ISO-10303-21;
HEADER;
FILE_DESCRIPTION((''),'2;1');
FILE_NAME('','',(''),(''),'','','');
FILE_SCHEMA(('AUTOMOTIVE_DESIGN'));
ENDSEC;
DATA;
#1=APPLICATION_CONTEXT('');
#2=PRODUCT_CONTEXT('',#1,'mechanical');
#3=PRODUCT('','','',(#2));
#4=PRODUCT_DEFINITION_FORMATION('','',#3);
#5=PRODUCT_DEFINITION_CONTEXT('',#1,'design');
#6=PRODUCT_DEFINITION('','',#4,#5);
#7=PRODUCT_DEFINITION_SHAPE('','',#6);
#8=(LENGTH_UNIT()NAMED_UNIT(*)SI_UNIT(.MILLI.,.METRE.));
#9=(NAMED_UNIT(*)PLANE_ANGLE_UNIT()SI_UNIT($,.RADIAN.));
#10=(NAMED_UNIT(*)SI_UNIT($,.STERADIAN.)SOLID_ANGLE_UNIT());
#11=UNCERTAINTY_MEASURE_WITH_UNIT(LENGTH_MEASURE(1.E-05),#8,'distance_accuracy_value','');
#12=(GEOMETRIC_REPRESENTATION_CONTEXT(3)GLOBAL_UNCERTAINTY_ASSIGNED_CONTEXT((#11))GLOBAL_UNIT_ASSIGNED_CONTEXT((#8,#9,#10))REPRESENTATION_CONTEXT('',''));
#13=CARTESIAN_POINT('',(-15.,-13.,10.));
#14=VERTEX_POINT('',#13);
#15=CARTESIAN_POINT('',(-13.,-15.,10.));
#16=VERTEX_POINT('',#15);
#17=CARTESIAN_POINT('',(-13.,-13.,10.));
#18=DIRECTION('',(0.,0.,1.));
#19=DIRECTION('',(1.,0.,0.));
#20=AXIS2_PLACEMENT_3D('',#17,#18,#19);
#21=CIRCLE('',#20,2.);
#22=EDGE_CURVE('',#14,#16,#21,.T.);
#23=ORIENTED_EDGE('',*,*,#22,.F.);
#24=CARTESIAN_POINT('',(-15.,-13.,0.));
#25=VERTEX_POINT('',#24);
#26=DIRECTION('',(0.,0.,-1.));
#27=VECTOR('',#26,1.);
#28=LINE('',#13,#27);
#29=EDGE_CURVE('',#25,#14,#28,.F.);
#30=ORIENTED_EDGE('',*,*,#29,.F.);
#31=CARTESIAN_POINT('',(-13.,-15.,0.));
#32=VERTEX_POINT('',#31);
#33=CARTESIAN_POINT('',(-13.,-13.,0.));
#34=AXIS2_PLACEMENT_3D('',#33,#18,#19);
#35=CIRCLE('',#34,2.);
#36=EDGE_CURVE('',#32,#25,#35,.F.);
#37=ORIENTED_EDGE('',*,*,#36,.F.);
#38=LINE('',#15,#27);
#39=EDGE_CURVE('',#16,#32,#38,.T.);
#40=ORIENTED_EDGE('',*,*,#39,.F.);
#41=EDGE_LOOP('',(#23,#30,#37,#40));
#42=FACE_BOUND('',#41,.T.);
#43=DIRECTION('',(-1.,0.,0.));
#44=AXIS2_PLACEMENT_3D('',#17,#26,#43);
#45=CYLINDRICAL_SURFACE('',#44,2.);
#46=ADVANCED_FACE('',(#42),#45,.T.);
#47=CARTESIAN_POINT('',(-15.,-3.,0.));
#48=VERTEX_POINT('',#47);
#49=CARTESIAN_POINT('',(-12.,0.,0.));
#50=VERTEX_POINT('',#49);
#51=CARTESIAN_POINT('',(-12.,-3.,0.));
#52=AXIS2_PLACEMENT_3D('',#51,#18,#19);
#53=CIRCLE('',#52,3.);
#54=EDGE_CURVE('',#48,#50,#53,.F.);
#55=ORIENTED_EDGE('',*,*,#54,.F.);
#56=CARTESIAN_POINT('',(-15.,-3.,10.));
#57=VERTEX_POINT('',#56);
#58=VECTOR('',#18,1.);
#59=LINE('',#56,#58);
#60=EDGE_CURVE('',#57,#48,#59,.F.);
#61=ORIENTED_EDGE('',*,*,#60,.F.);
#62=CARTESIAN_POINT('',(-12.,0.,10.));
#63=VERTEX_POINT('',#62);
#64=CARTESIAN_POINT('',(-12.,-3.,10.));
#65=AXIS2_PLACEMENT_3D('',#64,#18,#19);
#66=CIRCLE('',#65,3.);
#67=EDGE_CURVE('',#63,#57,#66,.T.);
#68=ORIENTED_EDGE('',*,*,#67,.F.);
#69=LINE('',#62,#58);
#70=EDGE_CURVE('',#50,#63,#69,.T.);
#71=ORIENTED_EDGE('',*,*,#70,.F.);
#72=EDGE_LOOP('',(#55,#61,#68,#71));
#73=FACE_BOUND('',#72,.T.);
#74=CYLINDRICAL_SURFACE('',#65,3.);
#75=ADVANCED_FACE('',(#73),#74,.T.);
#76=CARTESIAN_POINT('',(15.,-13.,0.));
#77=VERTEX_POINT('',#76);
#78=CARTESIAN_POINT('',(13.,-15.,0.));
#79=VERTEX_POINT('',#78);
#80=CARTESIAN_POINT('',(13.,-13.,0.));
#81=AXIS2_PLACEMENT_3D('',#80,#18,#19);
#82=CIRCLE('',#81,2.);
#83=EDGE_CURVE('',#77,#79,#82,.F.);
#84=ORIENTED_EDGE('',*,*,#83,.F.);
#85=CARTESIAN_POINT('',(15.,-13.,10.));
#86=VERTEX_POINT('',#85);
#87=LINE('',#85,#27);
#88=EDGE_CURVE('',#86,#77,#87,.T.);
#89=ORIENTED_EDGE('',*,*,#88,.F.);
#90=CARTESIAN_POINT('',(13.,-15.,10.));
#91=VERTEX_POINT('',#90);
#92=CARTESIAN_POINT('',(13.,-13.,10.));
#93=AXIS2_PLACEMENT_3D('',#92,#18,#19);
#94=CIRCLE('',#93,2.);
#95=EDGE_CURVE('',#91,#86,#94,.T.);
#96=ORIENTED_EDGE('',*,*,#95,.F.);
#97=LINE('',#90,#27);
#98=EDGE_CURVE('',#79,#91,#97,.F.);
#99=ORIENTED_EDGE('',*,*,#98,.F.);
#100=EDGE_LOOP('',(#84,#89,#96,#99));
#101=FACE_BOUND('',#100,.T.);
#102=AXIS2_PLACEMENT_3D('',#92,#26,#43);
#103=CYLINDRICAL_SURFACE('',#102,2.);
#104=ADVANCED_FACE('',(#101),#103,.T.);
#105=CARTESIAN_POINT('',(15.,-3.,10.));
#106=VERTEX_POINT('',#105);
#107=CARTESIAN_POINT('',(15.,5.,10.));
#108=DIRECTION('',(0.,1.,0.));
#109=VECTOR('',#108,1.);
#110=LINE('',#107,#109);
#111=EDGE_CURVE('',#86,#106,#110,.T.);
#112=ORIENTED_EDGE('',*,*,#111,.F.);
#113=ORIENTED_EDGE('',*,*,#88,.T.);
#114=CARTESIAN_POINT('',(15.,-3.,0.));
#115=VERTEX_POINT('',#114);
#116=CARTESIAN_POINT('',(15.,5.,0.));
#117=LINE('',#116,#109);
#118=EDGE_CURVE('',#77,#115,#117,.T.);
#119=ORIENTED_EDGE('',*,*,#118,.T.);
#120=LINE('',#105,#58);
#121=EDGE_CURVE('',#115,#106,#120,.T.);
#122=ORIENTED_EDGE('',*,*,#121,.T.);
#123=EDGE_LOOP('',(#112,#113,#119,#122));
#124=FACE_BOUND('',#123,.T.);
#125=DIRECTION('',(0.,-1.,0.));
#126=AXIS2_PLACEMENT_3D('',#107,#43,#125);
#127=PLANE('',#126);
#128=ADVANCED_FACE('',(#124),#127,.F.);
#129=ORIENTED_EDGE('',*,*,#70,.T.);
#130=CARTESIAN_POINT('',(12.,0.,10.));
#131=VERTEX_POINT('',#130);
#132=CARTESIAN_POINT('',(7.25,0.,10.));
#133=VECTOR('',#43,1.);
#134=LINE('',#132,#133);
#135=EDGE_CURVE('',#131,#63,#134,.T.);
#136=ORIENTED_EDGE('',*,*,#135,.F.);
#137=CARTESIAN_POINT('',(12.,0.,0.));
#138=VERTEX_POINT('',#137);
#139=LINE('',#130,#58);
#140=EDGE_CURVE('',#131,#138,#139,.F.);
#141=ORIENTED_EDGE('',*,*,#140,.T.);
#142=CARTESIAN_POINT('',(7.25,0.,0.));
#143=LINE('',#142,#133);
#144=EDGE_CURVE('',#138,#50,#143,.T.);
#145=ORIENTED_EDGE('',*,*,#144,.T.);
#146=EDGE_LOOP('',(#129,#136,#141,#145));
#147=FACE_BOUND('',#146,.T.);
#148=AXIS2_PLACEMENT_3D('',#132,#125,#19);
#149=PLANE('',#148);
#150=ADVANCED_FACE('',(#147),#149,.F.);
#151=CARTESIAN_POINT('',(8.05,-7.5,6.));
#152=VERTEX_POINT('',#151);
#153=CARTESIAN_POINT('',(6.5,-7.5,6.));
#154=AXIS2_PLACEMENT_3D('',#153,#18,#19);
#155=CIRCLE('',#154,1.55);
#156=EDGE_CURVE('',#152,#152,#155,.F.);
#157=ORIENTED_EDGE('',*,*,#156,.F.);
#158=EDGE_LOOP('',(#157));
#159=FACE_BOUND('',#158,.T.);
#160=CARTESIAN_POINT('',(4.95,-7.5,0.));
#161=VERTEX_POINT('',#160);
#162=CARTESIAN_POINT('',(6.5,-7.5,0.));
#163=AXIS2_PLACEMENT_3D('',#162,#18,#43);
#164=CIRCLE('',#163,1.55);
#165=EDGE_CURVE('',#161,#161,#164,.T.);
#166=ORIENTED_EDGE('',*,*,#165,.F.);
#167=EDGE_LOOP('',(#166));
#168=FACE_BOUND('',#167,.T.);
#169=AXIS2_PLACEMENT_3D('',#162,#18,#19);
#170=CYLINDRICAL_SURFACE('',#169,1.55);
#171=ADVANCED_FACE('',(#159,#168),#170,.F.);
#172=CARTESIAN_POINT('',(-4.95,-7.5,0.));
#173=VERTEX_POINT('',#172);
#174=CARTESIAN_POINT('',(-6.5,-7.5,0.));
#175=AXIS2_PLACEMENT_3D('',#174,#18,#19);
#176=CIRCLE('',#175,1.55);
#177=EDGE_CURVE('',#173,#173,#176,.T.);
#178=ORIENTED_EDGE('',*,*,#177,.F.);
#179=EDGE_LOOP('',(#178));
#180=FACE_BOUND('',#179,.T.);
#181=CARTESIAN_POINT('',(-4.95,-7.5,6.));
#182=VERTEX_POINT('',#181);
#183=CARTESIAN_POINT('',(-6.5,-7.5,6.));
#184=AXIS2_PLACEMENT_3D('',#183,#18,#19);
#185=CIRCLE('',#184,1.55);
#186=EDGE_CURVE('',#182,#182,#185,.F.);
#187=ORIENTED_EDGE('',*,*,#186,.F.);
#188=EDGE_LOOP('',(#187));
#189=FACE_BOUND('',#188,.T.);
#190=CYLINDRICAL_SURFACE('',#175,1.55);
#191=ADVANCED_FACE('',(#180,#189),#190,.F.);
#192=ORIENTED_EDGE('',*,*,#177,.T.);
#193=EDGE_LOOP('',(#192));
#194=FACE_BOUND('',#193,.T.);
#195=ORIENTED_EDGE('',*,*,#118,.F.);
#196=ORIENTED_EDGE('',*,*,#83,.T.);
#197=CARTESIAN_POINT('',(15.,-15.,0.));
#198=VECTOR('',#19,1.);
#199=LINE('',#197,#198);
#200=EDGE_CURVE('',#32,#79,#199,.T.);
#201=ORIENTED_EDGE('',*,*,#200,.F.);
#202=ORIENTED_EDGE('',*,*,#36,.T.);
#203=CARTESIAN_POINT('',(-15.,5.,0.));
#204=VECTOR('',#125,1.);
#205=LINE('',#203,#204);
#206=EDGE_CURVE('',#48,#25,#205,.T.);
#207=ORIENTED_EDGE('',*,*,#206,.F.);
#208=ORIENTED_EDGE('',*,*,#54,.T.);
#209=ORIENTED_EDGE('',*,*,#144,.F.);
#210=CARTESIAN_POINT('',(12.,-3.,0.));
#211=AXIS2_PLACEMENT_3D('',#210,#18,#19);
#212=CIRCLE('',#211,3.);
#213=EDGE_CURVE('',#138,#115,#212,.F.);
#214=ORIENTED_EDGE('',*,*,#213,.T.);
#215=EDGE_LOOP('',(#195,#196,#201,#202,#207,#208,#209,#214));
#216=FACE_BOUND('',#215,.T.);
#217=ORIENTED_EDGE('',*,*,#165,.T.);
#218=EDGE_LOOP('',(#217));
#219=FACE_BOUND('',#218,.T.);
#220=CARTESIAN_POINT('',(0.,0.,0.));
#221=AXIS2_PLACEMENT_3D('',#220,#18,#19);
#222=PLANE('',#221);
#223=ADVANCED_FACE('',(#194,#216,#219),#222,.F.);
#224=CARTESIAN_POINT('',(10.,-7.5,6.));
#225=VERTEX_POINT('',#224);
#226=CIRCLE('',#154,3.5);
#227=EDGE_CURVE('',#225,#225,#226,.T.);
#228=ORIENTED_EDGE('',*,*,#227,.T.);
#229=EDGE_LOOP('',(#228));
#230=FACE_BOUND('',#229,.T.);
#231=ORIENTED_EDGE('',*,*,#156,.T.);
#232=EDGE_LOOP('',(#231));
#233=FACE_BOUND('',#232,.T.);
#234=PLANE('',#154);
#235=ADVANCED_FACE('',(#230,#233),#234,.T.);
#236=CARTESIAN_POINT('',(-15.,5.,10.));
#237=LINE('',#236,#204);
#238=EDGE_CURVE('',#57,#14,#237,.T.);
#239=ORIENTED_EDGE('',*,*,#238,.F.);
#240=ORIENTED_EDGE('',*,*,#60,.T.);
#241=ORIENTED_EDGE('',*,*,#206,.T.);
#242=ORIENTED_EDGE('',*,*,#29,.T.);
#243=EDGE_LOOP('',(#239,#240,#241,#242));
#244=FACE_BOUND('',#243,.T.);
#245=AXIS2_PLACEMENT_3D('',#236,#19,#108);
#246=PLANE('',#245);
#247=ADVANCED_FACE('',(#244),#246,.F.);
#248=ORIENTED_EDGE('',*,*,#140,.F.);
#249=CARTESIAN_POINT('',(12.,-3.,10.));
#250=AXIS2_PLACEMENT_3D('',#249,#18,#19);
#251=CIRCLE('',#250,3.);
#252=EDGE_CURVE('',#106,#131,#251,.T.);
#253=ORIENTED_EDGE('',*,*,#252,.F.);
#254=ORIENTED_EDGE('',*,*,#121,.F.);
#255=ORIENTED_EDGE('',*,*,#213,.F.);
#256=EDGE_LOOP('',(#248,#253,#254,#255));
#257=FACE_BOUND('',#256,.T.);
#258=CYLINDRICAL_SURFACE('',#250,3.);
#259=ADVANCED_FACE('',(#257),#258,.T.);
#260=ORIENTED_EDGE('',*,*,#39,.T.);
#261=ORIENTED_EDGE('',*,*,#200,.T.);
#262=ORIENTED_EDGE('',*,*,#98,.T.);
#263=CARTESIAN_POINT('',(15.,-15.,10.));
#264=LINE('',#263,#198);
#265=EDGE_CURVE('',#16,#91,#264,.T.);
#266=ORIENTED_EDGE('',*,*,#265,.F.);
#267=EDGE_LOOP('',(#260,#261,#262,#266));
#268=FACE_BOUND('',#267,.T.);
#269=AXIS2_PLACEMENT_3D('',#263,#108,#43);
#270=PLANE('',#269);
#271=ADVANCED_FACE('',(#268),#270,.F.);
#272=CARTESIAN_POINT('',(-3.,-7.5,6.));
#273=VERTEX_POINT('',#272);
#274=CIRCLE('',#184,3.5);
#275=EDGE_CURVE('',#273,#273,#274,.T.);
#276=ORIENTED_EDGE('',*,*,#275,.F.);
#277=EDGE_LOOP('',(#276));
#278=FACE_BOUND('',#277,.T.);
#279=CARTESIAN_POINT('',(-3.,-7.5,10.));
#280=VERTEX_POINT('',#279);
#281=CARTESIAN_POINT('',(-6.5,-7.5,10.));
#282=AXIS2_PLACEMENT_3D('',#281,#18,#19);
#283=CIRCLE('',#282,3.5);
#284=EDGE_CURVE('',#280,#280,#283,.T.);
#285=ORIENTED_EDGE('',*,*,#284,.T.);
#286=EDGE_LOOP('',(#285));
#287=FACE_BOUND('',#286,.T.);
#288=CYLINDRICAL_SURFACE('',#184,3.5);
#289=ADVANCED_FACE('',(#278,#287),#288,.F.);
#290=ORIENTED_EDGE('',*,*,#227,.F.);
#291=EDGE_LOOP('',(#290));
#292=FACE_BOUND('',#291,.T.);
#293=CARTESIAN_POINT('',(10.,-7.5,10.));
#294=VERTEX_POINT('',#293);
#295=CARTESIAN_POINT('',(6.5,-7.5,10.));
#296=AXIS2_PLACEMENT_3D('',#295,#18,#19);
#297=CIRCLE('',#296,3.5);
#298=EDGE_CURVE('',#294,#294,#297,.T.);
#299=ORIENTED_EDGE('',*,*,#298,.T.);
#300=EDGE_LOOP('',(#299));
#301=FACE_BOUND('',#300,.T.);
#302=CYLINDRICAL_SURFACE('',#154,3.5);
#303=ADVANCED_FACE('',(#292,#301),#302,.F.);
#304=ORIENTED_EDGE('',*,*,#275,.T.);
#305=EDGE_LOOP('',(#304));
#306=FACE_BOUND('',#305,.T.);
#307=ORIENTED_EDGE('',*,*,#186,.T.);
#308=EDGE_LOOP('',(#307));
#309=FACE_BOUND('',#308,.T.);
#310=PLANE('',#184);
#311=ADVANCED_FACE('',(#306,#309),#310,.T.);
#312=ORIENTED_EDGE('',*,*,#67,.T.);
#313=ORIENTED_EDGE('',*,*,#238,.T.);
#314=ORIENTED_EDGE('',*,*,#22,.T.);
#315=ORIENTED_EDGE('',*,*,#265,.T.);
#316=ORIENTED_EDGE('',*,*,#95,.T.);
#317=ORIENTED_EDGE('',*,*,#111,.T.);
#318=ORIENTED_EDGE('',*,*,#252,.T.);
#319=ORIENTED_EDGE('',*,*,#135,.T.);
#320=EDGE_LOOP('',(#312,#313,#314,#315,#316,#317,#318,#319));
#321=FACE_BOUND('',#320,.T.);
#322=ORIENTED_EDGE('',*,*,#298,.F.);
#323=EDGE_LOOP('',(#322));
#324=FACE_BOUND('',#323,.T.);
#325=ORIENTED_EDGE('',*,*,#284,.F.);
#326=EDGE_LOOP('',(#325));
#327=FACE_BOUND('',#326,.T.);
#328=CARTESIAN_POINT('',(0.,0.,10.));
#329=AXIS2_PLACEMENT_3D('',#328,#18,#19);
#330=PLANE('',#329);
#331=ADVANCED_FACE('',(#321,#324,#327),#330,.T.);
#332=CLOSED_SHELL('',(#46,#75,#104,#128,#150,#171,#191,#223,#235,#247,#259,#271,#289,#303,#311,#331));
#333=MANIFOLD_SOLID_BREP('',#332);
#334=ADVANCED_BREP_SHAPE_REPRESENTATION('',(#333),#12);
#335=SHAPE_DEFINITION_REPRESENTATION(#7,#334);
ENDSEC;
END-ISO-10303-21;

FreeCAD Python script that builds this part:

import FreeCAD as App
import Part
import Sketcher
from FreeCAD import Vector
Q = App.Units.Quantity


def edges_at(feature, points):
    """Names of the edges that pass closest to the given points."""
    edges = feature.Shape.Edges
    near = lambda p: min(range(len(edges)), key=lambda i: edges[i].distToShape(Part.Vertex(*p))[0])
    return sorted({f"Edge{near(p) + 1}" for p in points})

doc = App.newDocument("Part")
body = doc.addObject("PartDesign::Body", "Body")

# Sketch on XY plane
sketch1 = doc.addObject("Sketcher::SketchObject", "Sketch")
body.addObject(sketch1)
sketch1.AttachmentSupport = (doc.XY_Plane, [""])
sketch1.MapMode = "FlatFace"
sketch1.addGeometry([
    Part.LineSegment(Vector(7.25, 0, 0), Vector(-7.25, 0, 0)),  # 0
    Part.LineSegment(Vector(-7.25, 0, 0), Vector(-7.25, 5, 0)),  # 1
    Part.LineSegment(Vector(-7.25, 5, 0), Vector(-15, 5, 0)),  # 2
    Part.LineSegment(Vector(-15, 5, 0), Vector(-15, -15, 0)),  # 3
    Part.LineSegment(Vector(-15, -15, 0), Vector(15, -15, 0)),  # 4
    Part.LineSegment(Vector(15, -15, 0), Vector(15, 5, 0)),  # 5
    Part.LineSegment(Vector(15, 5, 0), Vector(7.25, 5, 0)),  # 6
    Part.LineSegment(Vector(7.25, 5, 0), Vector(7.25, 0, 0)),  # 7
], False)
sketch1.addConstraint([
    Sketcher.Constraint("Coincident", 0, 2, 1, 1),
    Sketcher.Constraint("Coincident", 1, 2, 2, 1),
    Sketcher.Constraint("Coincident", 2, 2, 3, 1),
    Sketcher.Constraint("Coincident", 3, 2, 4, 1),
    Sketcher.Constraint("Coincident", 4, 2, 5, 1),
    Sketcher.Constraint("Coincident", 5, 2, 6, 1),
    Sketcher.Constraint("Coincident", 6, 2, 7, 1),
    Sketcher.Constraint("Coincident", 7, 2, 0, 1),
    Sketcher.Constraint("Horizontal", 0),
    Sketcher.Constraint("Vertical", 1),
    Sketcher.Constraint("Horizontal", 2),
    Sketcher.Constraint("Vertical", 3),
    Sketcher.Constraint("Horizontal", 4),
    Sketcher.Constraint("Vertical", 5),
    Sketcher.Constraint("Horizontal", 6),
    Sketcher.Constraint("Vertical", 7),
    Sketcher.Constraint("Symmetric", 0, 2, 7, 2, -1, 1),
    Sketcher.Constraint("Symmetric", 2, 2, 5, 2, -2),
    Sketcher.Constraint("DistanceX", 4, 1, 4, 2, Q("30 mm")),
    Sketcher.Constraint("DistanceY", 1, 1, 1, 2, Q("5 mm")),
    Sketcher.Constraint("DistanceY", 3, 2, 3, 1, Q("20 mm")),
    Sketcher.Constraint("DistanceX", 0, 2, 0, 1, Q("14.5 mm")),
])
pad1 = doc.addObject("PartDesign::Pad", "Pad")
body.addObject(pad1)
pad1.Profile = sketch1
pad1.Length = 10
doc.recompute()

fillet = doc.addObject("PartDesign::Fillet", "Fillet")
body.addObject(fillet)
fillet.Base = (pad1, edges_at(pad1, [
    (15, 5, 5),
    (15, -15, 5),
    (-15, -15, 5),
    (-15, 5, 5),
]))
fillet.Radius = 2

# Sketch on XY plane
sketch2 = doc.addObject("Sketcher::SketchObject", "Sketch001")
body.addObject(sketch2)
sketch2.AttachmentSupport = (doc.XY_Plane, [""])
sketch2.MapMode = "FlatFace"
sketch2.AttachmentOffset = App.Placement(Vector(0, 0, 10), App.Rotation())
sketch2.addGeometry([
    Part.Circle(Vector(-6.5, -7.5, 0), Vector(0, 0, 1), 1.55),
    Part.Circle(Vector(6.5, -7.5, 0), Vector(0, 0, 1), 1.55),
], False)
sketch2.addConstraint([
    Sketcher.Constraint("Equal", 0, 1),
    Sketcher.Constraint("Symmetric", 0, 3, 1, 3, -2),
    Sketcher.Constraint("Diameter", 0, Q("3.1 mm")),
    Sketcher.Constraint("DistanceX", 0, 3, 1, 3, Q("13 mm")),
    Sketcher.Constraint("DistanceY", 0, 3, -1, 1, Q("7.5 mm")),
])
pocket1 = doc.addObject("PartDesign::Pocket", "Pocket")
body.addObject(pocket1)
pocket1.Profile = sketch2
pocket1.Type = "ThroughAll"

# Sketch on XY plane
sketch3 = doc.addObject("Sketcher::SketchObject", "Sketch002")
body.addObject(sketch3)
sketch3.AttachmentSupport = (doc.XY_Plane, [""])
sketch3.MapMode = "FlatFace"
sketch3.AttachmentOffset = App.Placement(Vector(0, 0, 10), App.Rotation())
sketch3.addGeometry([
    Part.LineSegment(Vector(-15, 5, 0), Vector(-15, 0, 0)),
    Part.LineSegment(Vector(-15, 0, 0), Vector(15, 0, 0)),
    Part.LineSegment(Vector(15, 0, 0), Vector(15, 5, 0)),
    Part.LineSegment(Vector(15, 5, 0), Vector(-15, 5, 0)),
], False)
sketch3.addConstraint([
    Sketcher.Constraint("Coincident", 0, 2, 1, 1),
    Sketcher.Constraint("Coincident", 1, 2, 2, 1),
    Sketcher.Constraint("Coincident", 2, 2, 3, 1),
    Sketcher.Constraint("Coincident", 3, 2, 0, 1),
    Sketcher.Constraint("Vertical", 0),
    Sketcher.Constraint("Horizontal", 1),
    Sketcher.Constraint("Vertical", 2),
    Sketcher.Constraint("Horizontal", 3),
    Sketcher.Constraint("Symmetric", 0, 2, 1, 2, -1, 1),
    Sketcher.Constraint("DistanceX", 1, 1, 1, 2, Q("30 mm")),
    Sketcher.Constraint("DistanceY", 0, 2, 0, 1, Q("5 mm")),
])
pocket2 = doc.addObject("PartDesign::Pocket", "Pocket001")
body.addObject(pocket2)
pocket2.Profile = sketch3
pocket2.Type = "ThroughAll"
pocket2.Midplane = True
doc.recompute()

fillet2 = doc.addObject("PartDesign::Fillet", "Fillet001")
body.addObject(fillet2)
fillet2.Base = (pocket2, edges_at(pocket2, [(15, 0, 5), (-15, 0, 5)]))
fillet2.Radius = 3

# Sketch on XY plane
sketch4 = doc.addObject("Sketcher::SketchObject", "Sketch003")
body.addObject(sketch4)
sketch4.AttachmentSupport = (doc.XY_Plane, [""])
sketch4.MapMode = "FlatFace"
sketch4.AttachmentOffset = App.Placement(Vector(0, 0, 10), App.Rotation())
sketch4.addGeometry([
    Part.Circle(Vector(-6.5, -7.5, 0), Vector(0, 0, 1), 3.5),
    Part.Circle(Vector(6.5, -7.5, 0), Vector(0, 0, 1), 3.5),
], False)
sketch4.addConstraint([
    Sketcher.Constraint("Equal", 0, 1),
    Sketcher.Constraint("Symmetric", 0, 3, 1, 3, -2),
    Sketcher.Constraint("Diameter", 0, Q("7 mm")),
    Sketcher.Constraint("DistanceX", 0, 3, 1, 3, Q("13 mm")),
    Sketcher.Constraint("DistanceY", 0, 3, -1, 1, Q("7.5 mm")),
])
pocket3 = doc.addObject("PartDesign::Pocket", "Pocket002")
body.addObject(pocket3)
pocket3.Profile = sketch4
pocket3.Length = 4

doc.recompute()
